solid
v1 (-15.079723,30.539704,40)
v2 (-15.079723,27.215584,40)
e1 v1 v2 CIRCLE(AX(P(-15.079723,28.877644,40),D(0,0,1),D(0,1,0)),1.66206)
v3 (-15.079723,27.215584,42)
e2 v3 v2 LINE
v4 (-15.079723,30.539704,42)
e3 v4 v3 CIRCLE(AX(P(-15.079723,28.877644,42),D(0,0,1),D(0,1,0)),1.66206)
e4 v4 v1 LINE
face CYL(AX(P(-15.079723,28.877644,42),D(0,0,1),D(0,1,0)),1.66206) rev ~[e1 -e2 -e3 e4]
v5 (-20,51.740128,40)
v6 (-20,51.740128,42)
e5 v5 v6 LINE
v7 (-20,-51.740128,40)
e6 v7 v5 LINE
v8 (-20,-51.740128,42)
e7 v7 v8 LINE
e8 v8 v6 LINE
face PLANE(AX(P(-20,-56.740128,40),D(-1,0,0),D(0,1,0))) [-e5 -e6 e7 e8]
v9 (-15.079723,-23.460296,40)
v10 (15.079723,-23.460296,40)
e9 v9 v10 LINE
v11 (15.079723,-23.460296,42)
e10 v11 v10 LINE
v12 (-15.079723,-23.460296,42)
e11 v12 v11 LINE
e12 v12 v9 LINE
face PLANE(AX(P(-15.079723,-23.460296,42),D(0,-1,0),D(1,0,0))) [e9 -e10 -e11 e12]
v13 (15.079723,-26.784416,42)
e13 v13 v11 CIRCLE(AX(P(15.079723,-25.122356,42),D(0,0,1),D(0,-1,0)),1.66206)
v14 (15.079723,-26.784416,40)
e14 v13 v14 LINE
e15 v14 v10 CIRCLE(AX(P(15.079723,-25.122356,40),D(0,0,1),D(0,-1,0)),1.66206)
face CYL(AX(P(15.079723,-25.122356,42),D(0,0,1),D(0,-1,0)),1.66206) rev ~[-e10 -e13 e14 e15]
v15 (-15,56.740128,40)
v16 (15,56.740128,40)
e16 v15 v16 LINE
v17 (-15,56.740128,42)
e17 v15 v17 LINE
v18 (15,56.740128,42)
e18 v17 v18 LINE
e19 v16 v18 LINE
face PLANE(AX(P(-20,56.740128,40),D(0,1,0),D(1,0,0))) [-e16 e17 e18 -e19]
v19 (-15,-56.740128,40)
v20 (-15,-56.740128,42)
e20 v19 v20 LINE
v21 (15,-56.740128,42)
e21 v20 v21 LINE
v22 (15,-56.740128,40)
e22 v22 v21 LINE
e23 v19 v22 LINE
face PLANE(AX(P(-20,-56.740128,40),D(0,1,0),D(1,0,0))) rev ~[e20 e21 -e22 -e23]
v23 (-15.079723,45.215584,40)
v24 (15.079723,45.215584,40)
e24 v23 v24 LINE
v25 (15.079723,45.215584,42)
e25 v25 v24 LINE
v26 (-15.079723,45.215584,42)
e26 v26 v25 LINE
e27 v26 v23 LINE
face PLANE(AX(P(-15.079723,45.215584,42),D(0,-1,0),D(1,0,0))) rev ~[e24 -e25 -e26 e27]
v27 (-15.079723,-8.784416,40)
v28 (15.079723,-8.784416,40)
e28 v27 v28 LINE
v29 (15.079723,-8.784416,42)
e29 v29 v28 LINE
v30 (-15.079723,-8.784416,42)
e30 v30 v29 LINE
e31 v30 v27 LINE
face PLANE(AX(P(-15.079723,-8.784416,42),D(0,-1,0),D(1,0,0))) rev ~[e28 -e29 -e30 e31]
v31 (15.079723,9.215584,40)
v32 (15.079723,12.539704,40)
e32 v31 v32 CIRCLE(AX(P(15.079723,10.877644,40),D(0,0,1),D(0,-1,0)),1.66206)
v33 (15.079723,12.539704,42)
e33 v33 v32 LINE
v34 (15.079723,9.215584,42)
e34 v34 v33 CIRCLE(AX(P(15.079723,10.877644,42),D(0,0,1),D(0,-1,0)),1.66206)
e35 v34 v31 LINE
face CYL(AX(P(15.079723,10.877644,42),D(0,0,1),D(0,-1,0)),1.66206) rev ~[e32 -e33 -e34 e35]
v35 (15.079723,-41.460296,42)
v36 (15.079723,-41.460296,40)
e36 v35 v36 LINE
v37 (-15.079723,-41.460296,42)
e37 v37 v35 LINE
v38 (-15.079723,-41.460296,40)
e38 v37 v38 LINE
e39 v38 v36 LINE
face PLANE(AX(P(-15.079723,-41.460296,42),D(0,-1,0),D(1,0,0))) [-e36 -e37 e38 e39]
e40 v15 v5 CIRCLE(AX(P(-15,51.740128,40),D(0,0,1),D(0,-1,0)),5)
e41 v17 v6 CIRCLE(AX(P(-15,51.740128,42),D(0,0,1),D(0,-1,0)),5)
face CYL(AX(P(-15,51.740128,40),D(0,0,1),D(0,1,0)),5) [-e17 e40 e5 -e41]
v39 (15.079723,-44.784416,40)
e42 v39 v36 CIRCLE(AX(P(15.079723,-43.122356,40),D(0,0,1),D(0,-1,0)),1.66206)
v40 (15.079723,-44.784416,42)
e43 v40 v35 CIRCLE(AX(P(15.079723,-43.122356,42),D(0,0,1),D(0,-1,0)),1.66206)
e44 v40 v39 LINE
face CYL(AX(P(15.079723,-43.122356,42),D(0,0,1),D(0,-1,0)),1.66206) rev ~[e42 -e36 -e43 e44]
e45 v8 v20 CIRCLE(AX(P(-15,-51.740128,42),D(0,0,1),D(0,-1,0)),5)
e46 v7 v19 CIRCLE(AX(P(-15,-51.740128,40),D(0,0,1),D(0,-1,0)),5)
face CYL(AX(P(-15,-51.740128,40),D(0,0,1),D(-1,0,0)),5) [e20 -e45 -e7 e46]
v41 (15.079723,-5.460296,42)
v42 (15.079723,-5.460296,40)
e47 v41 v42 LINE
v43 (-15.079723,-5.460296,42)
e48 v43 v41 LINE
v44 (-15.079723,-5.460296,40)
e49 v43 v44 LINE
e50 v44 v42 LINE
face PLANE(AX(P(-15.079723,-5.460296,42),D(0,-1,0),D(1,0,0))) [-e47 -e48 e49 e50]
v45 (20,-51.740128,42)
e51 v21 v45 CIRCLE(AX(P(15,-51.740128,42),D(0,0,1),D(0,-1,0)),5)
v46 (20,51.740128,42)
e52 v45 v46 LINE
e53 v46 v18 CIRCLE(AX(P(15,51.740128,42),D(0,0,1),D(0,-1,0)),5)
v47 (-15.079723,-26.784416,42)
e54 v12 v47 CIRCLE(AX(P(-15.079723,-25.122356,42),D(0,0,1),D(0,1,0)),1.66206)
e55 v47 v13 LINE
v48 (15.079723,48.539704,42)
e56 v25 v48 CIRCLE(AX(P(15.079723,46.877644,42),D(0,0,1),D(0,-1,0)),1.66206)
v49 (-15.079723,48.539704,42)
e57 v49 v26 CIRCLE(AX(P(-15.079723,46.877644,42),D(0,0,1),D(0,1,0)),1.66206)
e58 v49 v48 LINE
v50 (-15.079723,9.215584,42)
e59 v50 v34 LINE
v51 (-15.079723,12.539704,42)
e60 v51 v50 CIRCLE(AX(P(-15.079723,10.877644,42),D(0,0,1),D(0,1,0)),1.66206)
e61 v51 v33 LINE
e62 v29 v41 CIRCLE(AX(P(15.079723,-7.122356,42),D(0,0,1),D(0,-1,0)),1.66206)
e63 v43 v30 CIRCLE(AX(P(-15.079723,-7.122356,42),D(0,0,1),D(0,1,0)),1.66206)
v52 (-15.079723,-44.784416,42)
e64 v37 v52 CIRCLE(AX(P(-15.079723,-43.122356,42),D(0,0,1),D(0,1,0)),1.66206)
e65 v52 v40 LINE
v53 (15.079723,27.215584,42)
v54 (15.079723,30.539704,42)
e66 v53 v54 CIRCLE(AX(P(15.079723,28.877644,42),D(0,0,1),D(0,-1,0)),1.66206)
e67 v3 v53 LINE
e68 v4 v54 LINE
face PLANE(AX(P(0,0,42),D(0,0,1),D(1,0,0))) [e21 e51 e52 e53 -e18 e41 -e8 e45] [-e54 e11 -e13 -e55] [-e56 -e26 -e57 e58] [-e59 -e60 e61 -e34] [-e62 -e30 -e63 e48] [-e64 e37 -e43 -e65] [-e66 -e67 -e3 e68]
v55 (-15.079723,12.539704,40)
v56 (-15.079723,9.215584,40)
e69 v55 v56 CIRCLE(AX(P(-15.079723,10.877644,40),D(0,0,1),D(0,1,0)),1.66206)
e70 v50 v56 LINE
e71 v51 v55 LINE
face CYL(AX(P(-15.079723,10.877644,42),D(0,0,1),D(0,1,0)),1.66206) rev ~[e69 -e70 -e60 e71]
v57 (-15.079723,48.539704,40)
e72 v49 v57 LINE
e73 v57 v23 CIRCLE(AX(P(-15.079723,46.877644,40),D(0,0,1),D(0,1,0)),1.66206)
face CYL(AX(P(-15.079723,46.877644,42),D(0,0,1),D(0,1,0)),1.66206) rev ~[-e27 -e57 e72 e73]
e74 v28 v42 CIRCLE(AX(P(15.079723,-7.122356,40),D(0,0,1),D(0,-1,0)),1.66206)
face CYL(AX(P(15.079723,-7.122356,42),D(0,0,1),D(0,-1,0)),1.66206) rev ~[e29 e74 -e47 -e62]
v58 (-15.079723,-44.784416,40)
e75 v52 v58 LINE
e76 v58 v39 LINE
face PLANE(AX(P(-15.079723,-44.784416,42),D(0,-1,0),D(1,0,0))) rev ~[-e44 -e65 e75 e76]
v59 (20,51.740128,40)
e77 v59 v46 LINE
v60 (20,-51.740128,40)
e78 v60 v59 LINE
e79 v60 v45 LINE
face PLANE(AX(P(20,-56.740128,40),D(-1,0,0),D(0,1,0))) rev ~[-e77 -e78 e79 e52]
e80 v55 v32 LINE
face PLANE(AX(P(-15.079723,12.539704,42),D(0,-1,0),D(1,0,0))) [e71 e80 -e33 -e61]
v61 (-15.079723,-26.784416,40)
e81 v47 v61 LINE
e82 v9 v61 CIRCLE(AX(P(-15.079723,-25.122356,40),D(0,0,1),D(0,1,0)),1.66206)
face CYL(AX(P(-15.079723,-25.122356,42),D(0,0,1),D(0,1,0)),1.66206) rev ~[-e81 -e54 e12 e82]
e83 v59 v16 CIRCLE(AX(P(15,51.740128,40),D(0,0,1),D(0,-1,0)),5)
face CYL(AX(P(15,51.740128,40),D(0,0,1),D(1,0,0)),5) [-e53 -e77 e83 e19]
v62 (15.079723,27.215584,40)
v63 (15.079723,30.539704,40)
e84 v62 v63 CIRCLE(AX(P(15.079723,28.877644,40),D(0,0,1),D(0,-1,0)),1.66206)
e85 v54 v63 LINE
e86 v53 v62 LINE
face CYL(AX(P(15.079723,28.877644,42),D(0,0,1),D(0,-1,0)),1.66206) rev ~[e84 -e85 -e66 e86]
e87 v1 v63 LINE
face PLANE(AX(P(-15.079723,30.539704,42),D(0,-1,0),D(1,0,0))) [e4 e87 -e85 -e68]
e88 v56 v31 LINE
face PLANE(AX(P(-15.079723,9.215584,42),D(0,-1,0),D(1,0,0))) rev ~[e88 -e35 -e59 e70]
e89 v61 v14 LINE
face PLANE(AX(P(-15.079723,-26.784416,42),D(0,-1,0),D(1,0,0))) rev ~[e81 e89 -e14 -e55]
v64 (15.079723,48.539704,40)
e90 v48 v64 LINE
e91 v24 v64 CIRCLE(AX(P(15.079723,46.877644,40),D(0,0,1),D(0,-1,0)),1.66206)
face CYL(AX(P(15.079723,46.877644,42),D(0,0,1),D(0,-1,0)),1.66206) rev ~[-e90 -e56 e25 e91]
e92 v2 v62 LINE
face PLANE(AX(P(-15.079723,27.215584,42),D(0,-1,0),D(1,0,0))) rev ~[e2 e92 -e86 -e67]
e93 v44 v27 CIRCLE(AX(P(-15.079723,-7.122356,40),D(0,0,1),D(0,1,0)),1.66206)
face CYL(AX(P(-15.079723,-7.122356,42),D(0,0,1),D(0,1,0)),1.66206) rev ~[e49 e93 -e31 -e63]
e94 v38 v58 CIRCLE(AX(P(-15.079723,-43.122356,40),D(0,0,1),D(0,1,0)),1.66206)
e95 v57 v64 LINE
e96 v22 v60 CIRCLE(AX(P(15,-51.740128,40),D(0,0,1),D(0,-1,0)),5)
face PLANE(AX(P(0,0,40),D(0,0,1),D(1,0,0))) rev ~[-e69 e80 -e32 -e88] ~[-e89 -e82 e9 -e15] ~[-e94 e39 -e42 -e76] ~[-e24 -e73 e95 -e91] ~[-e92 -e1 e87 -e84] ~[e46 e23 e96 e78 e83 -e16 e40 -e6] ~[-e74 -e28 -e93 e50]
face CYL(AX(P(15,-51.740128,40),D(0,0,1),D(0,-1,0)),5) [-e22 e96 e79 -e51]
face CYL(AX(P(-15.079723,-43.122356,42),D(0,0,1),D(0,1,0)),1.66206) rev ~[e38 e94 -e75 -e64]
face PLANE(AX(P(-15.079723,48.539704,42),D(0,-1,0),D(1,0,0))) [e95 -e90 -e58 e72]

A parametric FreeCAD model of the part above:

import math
import FreeCAD as App
import Part
import Sketcher


def edges_at(feature, points):
    """Names of the edges that pass closest to the given points."""
    edges = feature.Shape.Edges
    near = lambda p: min(range(len(edges)), key=lambda i: edges[i].distToShape(Part.Vertex(*p))[0])
    return sorted({f"Edge{near(p) + 1}" for p in points})

doc = App.newDocument("Part")
body = doc.addObject("PartDesign::Body", "Body")

sketch1 = body.newObject("Sketcher::SketchObject", "Sketch")
sketch1.AttachmentSupport = (doc.getObject("XY_Plane"), [""])
sketch1.MapMode = "FlatFace"
sketch1.AttachmentOffset = App.Placement(App.Vector(0, 0, 40), App.Rotation())
sketch1.addGeometry([
    Part.LineSegment(App.Vector(-20, 57, 0), App.Vector(-20, -57, 0)),
    Part.LineSegment(App.Vector(-20, -57, 0), App.Vector(20, -57, 0)),
    Part.LineSegment(App.Vector(20, -57, 0), App.Vector(20, 57, 0)),
    Part.LineSegment(App.Vector(20, 57, 0), App.Vector(-20, 57, 0)),
], False)
sketch1.addConstraint([
    Sketcher.Constraint("Coincident", 0, 2, 1, 1),
    Sketcher.Constraint("Coincident", 1, 2, 2, 1),
    Sketcher.Constraint("Coincident", 2, 2, 3, 1),
    Sketcher.Constraint("Coincident", 3, 2, 0, 1),
    Sketcher.Constraint("Vertical", 0),
    Sketcher.Constraint("Horizontal", 1),
    Sketcher.Constraint("Vertical", 2),
    Sketcher.Constraint("Horizontal", 3),
    Sketcher.Constraint("Symmetric", 0, 2, 2, 2, -1, 1),
    Sketcher.Constraint("DistanceX", 1, 1, 1, 2, 40.0),
    Sketcher.Constraint("DistanceY", 0, 2, 0, 1, 113.480256),
])
pad1 = body.newObject("PartDesign::Pad", "Pad")
pad1.Profile = sketch1
pad1.Length = 2
doc.recompute()

fillet = body.newObject("PartDesign::Fillet", "Fillet")
fillet.Base = (pad1, edges_at(pad1, [(20, 56.74, 41)]))
fillet.Radius = 5
doc.recompute()

fillet2 = body.newObject("PartDesign::Fillet", "Fillet001")
fillet2.Base = (fillet, edges_at(fillet, [(-20, 56.74, 41)]))
fillet2.Radius = 5
doc.recompute()

fillet3 = body.newObject("PartDesign::Fillet", "Fillet002")
fillet3.Base = (fillet2, edges_at(fillet2, [(-20, -56.74, 41)]))
fillet3.Radius = 5
doc.recompute()

fillet4 = body.newObject("PartDesign::Fillet", "Fillet003")
fillet4.Base = (fillet3, edges_at(fillet3, [(20, -56.74, 41)]))
fillet4.Radius = 5

sketch2 = body.newObject("Sketcher::SketchObject", "Sketch001")
sketch2.AttachmentSupport = (doc.getObject("XY_Plane"), [""])
sketch2.MapMode = "FlatFace"
sketch2.AttachmentOffset = App.Placement(App.Vector(0, 0, 42), App.Rotation())
sketch2.addGeometry([
    Part.ArcOfCircle(Part.Circle(App.Vector(-15.1, 46.9, 0), App.Vector(0, 0, 1), 1.7), math.radians(90), math.radians(270)),
    Part.LineSegment(App.Vector(-15.1, 45.2, 0), App.Vector(15.1, 45.2, 0)),
    Part.ArcOfCircle(Part.Circle(App.Vector(15.1, 46.9, 0), App.Vector(0, 0, 1), 1.7), math.radians(-90), math.radians(90)),
    Part.LineSegment(App.Vector(15.1, 48.5, 0), App.Vector(-15.1, 48.5, 0)),
], False)
sketch2.addConstraint([
    Sketcher.Constraint("Tangent", 0, 2, 1, 1),
    Sketcher.Constraint("Tangent", 1, 2, 2, 1),
    Sketcher.Constraint("Tangent", 2, 2, 3, 1),
    Sketcher.Constraint("Tangent", 3, 2, 0, 1),
    Sketcher.Constraint("Horizontal", 1),
    Sketcher.Constraint("Horizontal", 3),
    Sketcher.Constraint("Radius", 0, 1.66206),
    Sketcher.Constraint("DistanceX", 1, 1, 1, 2, 30.159446),
    Sketcher.Constraint("DistanceX", 0, 3, -1, 1, 15.079723),
    Sketcher.Constraint("DistanceY", -1, 1, 0, 3, 46.877644),
])
pocket1 = body.newObject("PartDesign::Pocket", "Pocket")
pocket1.Profile = sketch2
pocket1.Type = "ThroughAll"
doc.recompute()

linearpattern = body.newObject("PartDesign::LinearPattern", "LinearPattern")
linearpattern.Originals = [pocket1]
linearpattern.Direction = (doc.getObject("Y_Axis"), [""])
linearpattern.Mode = "offset"
linearpattern.Offset = 18
linearpattern.Occurrences = 6
linearpattern.Reversed = True
body.Tip = linearpattern

doc.recompute()
